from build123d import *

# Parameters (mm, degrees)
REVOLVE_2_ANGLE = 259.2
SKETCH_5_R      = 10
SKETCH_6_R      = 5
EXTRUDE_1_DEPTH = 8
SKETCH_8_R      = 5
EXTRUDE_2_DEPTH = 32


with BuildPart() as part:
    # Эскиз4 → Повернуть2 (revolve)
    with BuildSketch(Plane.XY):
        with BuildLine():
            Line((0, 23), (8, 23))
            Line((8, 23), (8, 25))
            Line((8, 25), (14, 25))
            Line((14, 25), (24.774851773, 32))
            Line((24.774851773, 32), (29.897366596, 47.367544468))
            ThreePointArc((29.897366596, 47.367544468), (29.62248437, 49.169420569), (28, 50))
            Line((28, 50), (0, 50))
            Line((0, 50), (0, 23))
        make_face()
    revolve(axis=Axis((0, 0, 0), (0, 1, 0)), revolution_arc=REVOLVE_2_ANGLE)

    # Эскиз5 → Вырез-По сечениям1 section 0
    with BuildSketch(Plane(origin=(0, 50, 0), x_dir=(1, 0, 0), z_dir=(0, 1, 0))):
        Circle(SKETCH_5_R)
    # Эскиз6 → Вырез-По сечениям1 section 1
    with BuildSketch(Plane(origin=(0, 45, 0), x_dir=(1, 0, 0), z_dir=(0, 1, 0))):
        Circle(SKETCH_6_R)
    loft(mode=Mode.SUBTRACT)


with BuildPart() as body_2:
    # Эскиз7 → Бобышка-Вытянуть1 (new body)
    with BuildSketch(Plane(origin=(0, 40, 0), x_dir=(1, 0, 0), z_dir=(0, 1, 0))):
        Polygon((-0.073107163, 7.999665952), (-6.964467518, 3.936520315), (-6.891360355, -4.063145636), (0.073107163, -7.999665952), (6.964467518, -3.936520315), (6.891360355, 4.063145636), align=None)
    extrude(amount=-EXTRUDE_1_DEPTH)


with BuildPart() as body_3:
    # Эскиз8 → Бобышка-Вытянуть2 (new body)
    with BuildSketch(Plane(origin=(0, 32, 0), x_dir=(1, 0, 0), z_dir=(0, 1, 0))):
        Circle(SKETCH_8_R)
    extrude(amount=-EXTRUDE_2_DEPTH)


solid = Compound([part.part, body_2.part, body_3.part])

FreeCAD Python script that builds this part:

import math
import FreeCAD as App
import Part
import Sketcher

doc = App.newDocument("Part")
body = doc.addObject("PartDesign::Body", "Body")

# Sketch on XY plane
sketch1 = body.newObject("Sketcher::SketchObject", "Sketch")
sketch1.AttachmentSupport = (doc.getObject("XY_Plane"), [""])
sketch1.MapMode = "FlatFace"
sketch1.addGeometry([
    Part.LineSegment(App.Vector(0, 23, 0), App.Vector(8, 23, 0)),  # 0
    Part.LineSegment(App.Vector(8, 23, 0), App.Vector(8, 25, 0)),  # 1
    Part.LineSegment(App.Vector(8, 25, 0), App.Vector(14, 25, 0)),  # 2
    Part.LineSegment(App.Vector(14, 25, 0), App.Vector(24.8, 32, 0)),  # 3
    Part.LineSegment(App.Vector(24.8, 32, 0), App.Vector(29.9, 47.4, 0)),  # 4
    Part.ArcOfCircle(Part.Circle(App.Vector(28, 48, 0), App.Vector(0, 0, 1), 2), math.radians(-18), math.radians(90)),  # 5
    Part.LineSegment(App.Vector(28, 50, 0), App.Vector(0, 50, 0)),  # 6
    Part.LineSegment(App.Vector(0, 50, 0), App.Vector(0, 23, 0)),  # 7
], False)
sketch1.addConstraint([
    Sketcher.Constraint("Coincident", 0, 2, 1, 1),
    Sketcher.Constraint("Coincident", 1, 2, 2, 1),
    Sketcher.Constraint("Coincident", 2, 2, 3, 1),
    Sketcher.Constraint("Coincident", 3, 2, 4, 1),
    Sketcher.Constraint("Tangent", 4, 2, 5, 1),
    Sketcher.Constraint("Tangent", 5, 2, 6, 1),
    Sketcher.Constraint("Coincident", 6, 2, 7, 1),
    Sketcher.Constraint("Coincident", 7, 2, 0, 1),
    Sketcher.Constraint("Horizontal", 0),
    Sketcher.Constraint("Vertical", 1),
    Sketcher.Constraint("Horizontal", 2),
    Sketcher.Constraint("Horizontal", 6),
    Sketcher.Constraint("Vertical", 7),
    Sketcher.Constraint("PointOnObject", 6, 2, -2),
    Sketcher.Constraint("Radius", 5, 2.0),
    Sketcher.Constraint("DistanceX", 0, 1, 0, 2, 8.0),
    Sketcher.Constraint("DistanceX", 2, 1, 2, 2, 6.0),
    Sketcher.Constraint("DistanceX", 6, 2, 6, 1, 28.0),
    Sketcher.Constraint("DistanceY", 1, 1, 1, 2, 2.0),
    Sketcher.Constraint("DistanceY", 7, 2, 7, 1, 27.0),
    Sketcher.Constraint("DistanceY", -1, 1, 5, 3, 48.0),
    Sketcher.Constraint("DistanceY", -1, 1, 3, 2, 32.0),
    Sketcher.Constraint("DistanceX", -1, 1, 3, 2, 24.774852),
])
revolution = body.newObject("PartDesign::Revolution", "Revolution")
revolution.Profile = sketch1
revolution.ReferenceAxis = (sketch1, ["V_Axis"])
revolution.Angle = 259.2

# Sketch on XZ plane
sketch2 = body.newObject("Sketcher::SketchObject", "Sketch001")
sketch2.AttachmentSupport = (doc.getObject("XZ_Plane"), [""])
sketch2.MapMode = "FlatFace"
sketch2.AttachmentOffset = App.Placement(App.Vector(0, 0, -50), App.Rotation())
sketch2.addGeometry(Part.Circle(App.Vector(0, 0, 0), App.Vector(0, 0, 1), 10), False)
sketch2.addConstraint([
    Sketcher.Constraint("Coincident", 0, 3, -1, 1),
    Sketcher.Constraint("Diameter", 0, 20.0),
])

# Sketch on XZ plane
sketch3 = body.newObject("Sketcher::SketchObject", "Sketch002")
sketch3.AttachmentSupport = (doc.getObject("XZ_Plane"), [""])
sketch3.MapMode = "FlatFace"
sketch3.AttachmentOffset = App.Placement(App.Vector(0, 0, -45), App.Rotation())
sketch3.addGeometry(Part.Circle(App.Vector(0, 0, 0), App.Vector(0, 0, 1), 5), False)
sketch3.addConstraint([
    Sketcher.Constraint("Coincident", 0, 3, -1, 1),
    Sketcher.Constraint("Diameter", 0, 10.0),
])

subtractiveloft = body.newObject("PartDesign::SubtractiveLoft", "SubtractiveLoft")
subtractiveloft.Profile = sketch2
subtractiveloft.Sections = [sketch3]
body2 = doc.addObject("PartDesign::Body", "Body001")

# Sketch on XZ plane
sketch4 = body2.newObject("Sketcher::SketchObject", "Sketch003")
sketch4.AttachmentSupport = (doc.getObject("XZ_Plane001"), [""])
sketch4.MapMode = "FlatFace"
sketch4.AttachmentOffset = App.Placement(App.Vector(0, 0, -40), App.Rotation())
sketch4.addGeometry([
    Part.LineSegment(App.Vector(0, -8, 0), App.Vector(-7, -4, 0)),  # 0
    Part.LineSegment(App.Vector(-7, -4, 0), App.Vector(-7, 4, 0)),  # 1
    Part.LineSegment(App.Vector(-7, 4, 0), App.Vector(0, 8, 0)),  # 2
    Part.LineSegment(App.Vector(0, 8, 0), App.Vector(7, 4, 0)),  # 3
    Part.LineSegment(App.Vector(7, 4, 0), App.Vector(7, -4, 0)),  # 4
    Part.LineSegment(App.Vector(7, -4, 0), App.Vector(0, -8, 0)),  # 5
], False)
sketch4.addConstraint([
    Sketcher.Constraint("Coincident", 0, 2, 1, 1),
    Sketcher.Constraint("Coincident", 1, 2, 2, 1),
    Sketcher.Constraint("Coincident", 2, 2, 3, 1),
    Sketcher.Constraint("Coincident", 3, 2, 4, 1),
    Sketcher.Constraint("Coincident", 4, 2, 5, 1),
    Sketcher.Constraint("Coincident", 5, 2, 0, 1),
    Sketcher.Constraint("Symmetric", 0, 2, 3, 2, -1, 1),
    Sketcher.Constraint("Symmetric", 1, 2, 4, 2, -1, 1),
    Sketcher.Constraint("Symmetric", 2, 2, 5, 2, -1, 1),
    Sketcher.Constraint("Equal", 0, 1),
    Sketcher.Constraint("Equal", 1, 2),
    Sketcher.Constraint("Distance", 0, 8.0),
    Sketcher.Constraint("DistanceY", 0, 2, -1, 1, 3.93652),
    Sketcher.Constraint("DistanceX", 1, 2, -1, 1, 6.89136),
    Sketcher.Constraint("DistanceY", 1, 2, 2, 2, 3.93652),
])
pad1 = body2.newObject("PartDesign::Pad", "Pad")
pad1.Profile = sketch4
pad1.Length = 8
body3 = doc.addObject("PartDesign::Body", "Body002")

# Sketch on XZ plane
sketch5 = body3.newObject("Sketcher::SketchObject", "Sketch004")
sketch5.AttachmentSupport = (doc.getObject("XZ_Plane002"), [""])
sketch5.MapMode = "FlatFace"
sketch5.AttachmentOffset = App.Placement(App.Vector(0, 0, -32), App.Rotation())
sketch5.addGeometry(Part.Circle(App.Vector(0, 0, 0), App.Vector(0, 0, 1), 5), False)
sketch5.addConstraint([
    Sketcher.Constraint("Coincident", 0, 3, -1, 1),
    Sketcher.Constraint("Diameter", 0, 10.0),
])
pad2 = body3.newObject("PartDesign::Pad", "Pad001")
pad2.Profile = sketch5
pad2.Length = 32

doc.recompute()
